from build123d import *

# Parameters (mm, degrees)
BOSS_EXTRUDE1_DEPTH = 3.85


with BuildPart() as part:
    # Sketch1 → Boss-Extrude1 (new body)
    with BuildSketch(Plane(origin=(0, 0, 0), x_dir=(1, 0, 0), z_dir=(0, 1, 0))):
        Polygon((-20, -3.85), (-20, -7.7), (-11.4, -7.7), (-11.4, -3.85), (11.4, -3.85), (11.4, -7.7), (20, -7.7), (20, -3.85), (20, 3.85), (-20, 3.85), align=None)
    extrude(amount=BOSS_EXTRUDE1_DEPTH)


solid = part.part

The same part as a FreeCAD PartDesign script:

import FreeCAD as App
import Part
import Sketcher
Q = App.Units.Quantity


def add_polygon(sketch, points):
    """Adds a closed chain of lines whose ends are joined by coincident constraints."""
    first, n = sketch.GeometryCount, len(points)
    for a, b in zip(points, points[1:] + points[:1]):
        sketch.addGeometry(Part.LineSegment(App.Vector(*a, 0), App.Vector(*b, 0)), False)
    for i in range(n):
        sketch.addConstraint(Sketcher.Constraint("Coincident", first + i, 2, first + (i + 1) % n, 1))

doc = App.newDocument("Part")
params = doc.addObject("Spreadsheet::Sheet", "Params")
for row, (alias, value) in enumerate([
    ("sketch1_width", "40 mm"),
    ("sketch1_width2", "8.6 mm"),
    ("sketch1_height", "3.85 mm"),
    ("sketch1_height2", "11.55 mm"),
    ("pad1_length", "3.85 mm"),
], start=1):
    params.set(f"A{row}", alias)
    params.set(f"B{row}", "=" + value)
    params.setAlias(f"B{row}", alias)

body = doc.addObject("PartDesign::Body", "Body")

# Sketch on XZ plane
sketch1 = doc.addObject("Sketcher::SketchObject", "Sketch")
body.addObject(sketch1)
sketch1.AttachmentSupport = (doc.XZ_Plane, [""])
sketch1.MapMode = "FlatFace"
add_polygon(sketch1, [(-20, 7.7), (-11.4, 7.7), (-11.4, 3.85), (11.4, 3.85), (11.4, 7.7), (20, 7.7), (20, -3.85), (-20, -3.85)])  # lines 0-7
sketch1.addConstraint(Sketcher.Constraint("Horizontal", 0))
sketch1.addConstraint(Sketcher.Constraint("Vertical", 1))
sketch1.addConstraint(Sketcher.Constraint("Horizontal", 2))
sketch1.addConstraint(Sketcher.Constraint("Vertical", 3))
sketch1.addConstraint(Sketcher.Constraint("Horizontal", 4))
sketch1.addConstraint(Sketcher.Constraint("Vertical", 5))
sketch1.addConstraint(Sketcher.Constraint("Horizontal", 6))
sketch1.addConstraint(Sketcher.Constraint("Vertical", 7))
sketch1.addConstraint(Sketcher.Constraint("Symmetric", 0, 2, 3, 2, -2))
sketch1.addConstraint(Sketcher.Constraint("Equal", 0, 4))
sketch1.addConstraint(Sketcher.Constraint("DistanceX", 6, 2, 6, 1, Q("40 mm")))
sketch1.addConstraint(Sketcher.Constraint("DistanceX", 0, 1, 0, 2, Q("8.6 mm")))
sketch1.addConstraint(Sketcher.Constraint("DistanceY", 1, 2, 1, 1, Q("3.85 mm")))
sketch1.addConstraint(Sketcher.Constraint("DistanceY", 5, 2, 5, 1, Q("11.55 mm")))
sketch1.addConstraint(Sketcher.Constraint("DistanceY", -1, 1, 0, 2, Q("7.7 mm")))
sketch1.setExpression("Constraints[18]", "Params.sketch1_width")
sketch1.setExpression("Constraints[19]", "Params.sketch1_width2")
sketch1.setExpression("Constraints[20]", "Params.sketch1_height")
sketch1.setExpression("Constraints[21]", "Params.sketch1_height2")
pad1 = doc.addObject("PartDesign::Pad", "Pad")
body.addObject(pad1)
pad1.Profile = sketch1
pad1.setExpression("Length", "Params.pad1_length")
pad1.Reversed = True

doc.recompute()
